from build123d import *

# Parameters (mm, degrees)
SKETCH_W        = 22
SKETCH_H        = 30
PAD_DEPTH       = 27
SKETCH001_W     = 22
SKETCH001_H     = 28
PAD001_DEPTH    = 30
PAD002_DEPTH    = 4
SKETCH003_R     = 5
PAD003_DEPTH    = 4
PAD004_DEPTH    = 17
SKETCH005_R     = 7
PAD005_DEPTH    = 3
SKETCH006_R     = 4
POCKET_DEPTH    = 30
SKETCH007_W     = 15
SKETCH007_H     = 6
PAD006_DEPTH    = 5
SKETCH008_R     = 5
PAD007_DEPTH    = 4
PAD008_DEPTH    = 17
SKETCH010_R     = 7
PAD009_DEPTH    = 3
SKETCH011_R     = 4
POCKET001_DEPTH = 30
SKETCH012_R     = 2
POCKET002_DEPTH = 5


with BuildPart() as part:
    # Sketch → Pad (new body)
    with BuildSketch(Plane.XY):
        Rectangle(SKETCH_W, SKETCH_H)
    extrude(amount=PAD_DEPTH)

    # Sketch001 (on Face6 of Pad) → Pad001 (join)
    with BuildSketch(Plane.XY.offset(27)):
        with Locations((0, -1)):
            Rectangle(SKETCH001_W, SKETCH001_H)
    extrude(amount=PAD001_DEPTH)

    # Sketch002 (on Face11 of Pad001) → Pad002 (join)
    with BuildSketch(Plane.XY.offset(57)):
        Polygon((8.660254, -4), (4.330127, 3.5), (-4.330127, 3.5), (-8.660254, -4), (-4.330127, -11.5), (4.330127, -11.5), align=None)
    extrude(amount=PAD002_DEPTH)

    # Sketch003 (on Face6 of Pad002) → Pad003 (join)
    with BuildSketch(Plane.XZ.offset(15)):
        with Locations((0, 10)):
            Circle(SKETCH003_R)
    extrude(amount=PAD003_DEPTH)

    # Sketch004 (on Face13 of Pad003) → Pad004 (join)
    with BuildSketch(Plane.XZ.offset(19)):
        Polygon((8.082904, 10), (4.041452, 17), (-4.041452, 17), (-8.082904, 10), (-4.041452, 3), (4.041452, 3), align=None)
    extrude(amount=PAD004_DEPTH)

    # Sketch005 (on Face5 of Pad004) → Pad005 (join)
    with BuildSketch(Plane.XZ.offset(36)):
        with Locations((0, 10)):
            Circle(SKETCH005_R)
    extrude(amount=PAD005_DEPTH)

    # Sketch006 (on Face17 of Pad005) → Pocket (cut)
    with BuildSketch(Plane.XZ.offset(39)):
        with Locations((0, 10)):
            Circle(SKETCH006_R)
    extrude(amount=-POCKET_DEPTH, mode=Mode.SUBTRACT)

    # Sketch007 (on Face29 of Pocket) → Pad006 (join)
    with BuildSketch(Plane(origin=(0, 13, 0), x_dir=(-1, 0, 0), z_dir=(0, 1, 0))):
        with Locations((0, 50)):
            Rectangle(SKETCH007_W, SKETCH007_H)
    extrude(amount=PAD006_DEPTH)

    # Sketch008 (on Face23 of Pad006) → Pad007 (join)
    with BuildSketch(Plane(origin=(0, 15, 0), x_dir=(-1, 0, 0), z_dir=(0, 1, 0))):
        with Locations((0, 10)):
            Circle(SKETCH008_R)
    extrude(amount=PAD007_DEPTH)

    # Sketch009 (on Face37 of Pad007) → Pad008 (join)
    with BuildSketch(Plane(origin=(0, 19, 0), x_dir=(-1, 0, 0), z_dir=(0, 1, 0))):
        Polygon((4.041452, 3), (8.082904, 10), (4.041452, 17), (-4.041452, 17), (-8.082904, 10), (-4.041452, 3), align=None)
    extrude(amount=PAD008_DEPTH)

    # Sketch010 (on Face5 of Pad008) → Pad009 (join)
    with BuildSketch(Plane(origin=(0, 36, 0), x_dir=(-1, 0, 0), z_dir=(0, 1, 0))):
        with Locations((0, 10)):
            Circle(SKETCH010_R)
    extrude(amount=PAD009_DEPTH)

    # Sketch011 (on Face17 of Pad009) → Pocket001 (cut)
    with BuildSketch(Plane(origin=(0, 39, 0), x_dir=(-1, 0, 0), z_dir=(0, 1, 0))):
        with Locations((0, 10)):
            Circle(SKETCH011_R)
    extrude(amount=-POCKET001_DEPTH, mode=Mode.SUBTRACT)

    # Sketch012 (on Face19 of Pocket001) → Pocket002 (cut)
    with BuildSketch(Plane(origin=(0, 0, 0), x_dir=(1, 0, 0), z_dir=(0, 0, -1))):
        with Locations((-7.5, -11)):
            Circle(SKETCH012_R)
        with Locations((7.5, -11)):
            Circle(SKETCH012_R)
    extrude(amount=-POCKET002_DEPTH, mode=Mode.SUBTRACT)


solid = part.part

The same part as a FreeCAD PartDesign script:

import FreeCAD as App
import Part
import Sketcher

V = App.Vector
Q = App.Units.Quantity

doc = App.newDocument("Part")
body = doc.addObject("PartDesign::Body", "Body")

sketch1 = body.newObject("Sketcher::SketchObject", "Sketch")
sketch1.AttachmentSupport = (doc.getObject("XY_Plane"), [""])
sketch1.MapMode = "FlatFace"
sketch1.addGeometry(Part.LineSegment(V(-11, 15, 0), V(-11, -15, 0)), False)
sketch1.addGeometry(Part.LineSegment(V(-11, -15, 0), V(11, -15, 0)), False)
sketch1.addGeometry(Part.LineSegment(V(11, -15, 0), V(11, 15, 0)), False)
sketch1.addGeometry(Part.LineSegment(V(11, 15, 0), V(-11, 15, 0)), False)
sketch1.addConstraint(Sketcher.Constraint("Coincident", 0, 2, 1, 1))
sketch1.addConstraint(Sketcher.Constraint("Coincident", 1, 2, 2, 1))
sketch1.addConstraint(Sketcher.Constraint("Coincident", 2, 2, 3, 1))
sketch1.addConstraint(Sketcher.Constraint("Coincident", 3, 2, 0, 1))
sketch1.addConstraint(Sketcher.Constraint("Vertical", 0))
sketch1.addConstraint(Sketcher.Constraint("Horizontal", 1))
sketch1.addConstraint(Sketcher.Constraint("Vertical", 2))
sketch1.addConstraint(Sketcher.Constraint("Horizontal", 3))
sketch1.addConstraint(Sketcher.Constraint("Symmetric", 0, 2, 2, 2, -1, 1))
sketch1.addConstraint(Sketcher.Constraint("DistanceX", 1, 1, 1, 2, Q("22 mm")))
sketch1.addConstraint(Sketcher.Constraint("DistanceY", 0, 2, 0, 1, Q("30 mm")))
pad1 = body.newObject("PartDesign::Pad", "Pad")
pad1.Profile = sketch1
pad1.Length = 27

sketch2 = body.newObject("Sketcher::SketchObject", "Sketch001")
sketch2.AttachmentSupport = (doc.getObject("XY_Plane"), [""])
sketch2.MapMode = "FlatFace"
sketch2.AttachmentOffset = App.Placement(V(0, 0, 27), App.Rotation())
sketch2.addGeometry(Part.LineSegment(V(-11, 13, 0), V(-11, -15, 0)), False)
sketch2.addGeometry(Part.LineSegment(V(-11, -15, 0), V(11, -15, 0)), False)
sketch2.addGeometry(Part.LineSegment(V(11, -15, 0), V(11, 13, 0)), False)
sketch2.addGeometry(Part.LineSegment(V(11, 13, 0), V(-11, 13, 0)), False)
sketch2.addConstraint(Sketcher.Constraint("Coincident", 0, 2, 1, 1))
sketch2.addConstraint(Sketcher.Constraint("Coincident", 1, 2, 2, 1))
sketch2.addConstraint(Sketcher.Constraint("Coincident", 2, 2, 3, 1))
sketch2.addConstraint(Sketcher.Constraint("Coincident", 3, 2, 0, 1))
sketch2.addConstraint(Sketcher.Constraint("Vertical", 0))
sketch2.addConstraint(Sketcher.Constraint("Horizontal", 1))
sketch2.addConstraint(Sketcher.Constraint("Vertical", 2))
sketch2.addConstraint(Sketcher.Constraint("Horizontal", 3))
sketch2.addConstraint(Sketcher.Constraint("DistanceX", 1, 1, 1, 2, Q("22 mm")))
sketch2.addConstraint(Sketcher.Constraint("DistanceY", 0, 2, 0, 1, Q("28 mm")))
sketch2.addConstraint(Sketcher.Constraint("DistanceX", 0, 2, -1, 1, Q("11 mm")))
sketch2.addConstraint(Sketcher.Constraint("DistanceY", 0, 2, -1, 1, Q("15 mm")))
pad2 = body.newObject("PartDesign::Pad", "Pad001")
pad2.Profile = sketch2
pad2.Length = 30

sketch3 = body.newObject("Sketcher::SketchObject", "Sketch002")
sketch3.AttachmentSupport = (doc.getObject("XY_Plane"), [""])
sketch3.MapMode = "FlatFace"
sketch3.AttachmentOffset = App.Placement(V(0, 0, 57), App.Rotation())
sketch3.addGeometry(Part.LineSegment(V(9, -4, 0), V(4, 4, 0)), False)
sketch3.addGeometry(Part.LineSegment(V(4, 4, 0), V(-4, 4, 0)), False)
sketch3.addGeometry(Part.LineSegment(V(-4, 4, 0), V(-9, -4, 0)), False)
sketch3.addGeometry(Part.LineSegment(V(-9, -4, 0), V(-4, -12, 0)), False)
sketch3.addGeometry(Part.LineSegment(V(-4, -12, 0), V(4, -12, 0)), False)
sketch3.addGeometry(Part.LineSegment(V(4, -12, 0), V(9, -4, 0)), False)
sketch3.addConstraint(Sketcher.Constraint("Coincident", 0, 2, 1, 1))
sketch3.addConstraint(Sketcher.Constraint("Coincident", 1, 2, 2, 1))
sketch3.addConstraint(Sketcher.Constraint("Coincident", 2, 2, 3, 1))
sketch3.addConstraint(Sketcher.Constraint("Coincident", 3, 2, 4, 1))
sketch3.addConstraint(Sketcher.Constraint("Coincident", 4, 2, 5, 1))
sketch3.addConstraint(Sketcher.Constraint("Coincident", 5, 2, 0, 1))
sketch3.addConstraint(Sketcher.Constraint("Horizontal", 1))
sketch3.addConstraint(Sketcher.Constraint("Horizontal", 4))
sketch3.addConstraint(Sketcher.Constraint("Symmetric", 2, 2, 5, 2, -2))
sketch3.addConstraint(Sketcher.Constraint("Parallel", 0, 3))
sketch3.addConstraint(Sketcher.Constraint("Parallel", 2, 5))
sketch3.addConstraint(Sketcher.Constraint("Vertical", 1, 2, 3, 2))
sketch3.addConstraint(Sketcher.Constraint("Vertical", 0, 2, 4, 2))
sketch3.addConstraint(Sketcher.Constraint("Angle", 0, Q("120 deg")))
sketch3.addConstraint(Sketcher.Constraint("DistanceY", 2, 2, -1, 1, Q("4 mm")))
sketch3.addConstraint(Sketcher.Constraint("DistanceY", 3, 2, 1, 2, Q("15 mm")))
sketch3.addConstraint(Sketcher.Constraint("DistanceX", 1, 2, 1, 1, Q("8.660254 mm")))
pad3 = body.newObject("PartDesign::Pad", "Pad002")
pad3.Profile = sketch3
pad3.Length = 4

sketch4 = body.newObject("Sketcher::SketchObject", "Sketch003")
sketch4.AttachmentSupport = (doc.getObject("XZ_Plane"), [""])
sketch4.MapMode = "FlatFace"
sketch4.AttachmentOffset = App.Placement(V(0, 0, 15), App.Rotation())
sketch4.addGeometry(Part.Circle(V(0, 10, 0), V(0, 0, 1), 5), False)
sketch4.addConstraint(Sketcher.Constraint("PointOnObject", 0, 3, -2))
sketch4.addConstraint(Sketcher.Constraint("Diameter", 0, Q("10 mm")))
sketch4.addConstraint(Sketcher.Constraint("DistanceY", -1, 1, 0, 3, Q("10 mm")))
pad4 = body.newObject("PartDesign::Pad", "Pad003")
pad4.Profile = sketch4
pad4.Length = 4

sketch5 = body.newObject("Sketcher::SketchObject", "Sketch004")
sketch5.AttachmentSupport = (doc.getObject("XZ_Plane"), [""])
sketch5.MapMode = "FlatFace"
sketch5.AttachmentOffset = App.Placement(V(0, 0, 19), App.Rotation())
sketch5.addGeometry(Part.LineSegment(V(8, 10, 0), V(4, 17, 0)), False)
sketch5.addGeometry(Part.LineSegment(V(4, 17, 0), V(-4, 17, 0)), False)
sketch5.addGeometry(Part.LineSegment(V(-4, 17, 0), V(-8, 10, 0)), False)
sketch5.addGeometry(Part.LineSegment(V(-8, 10, 0), V(-4, 3, 0)), False)
sketch5.addGeometry(Part.LineSegment(V(-4, 3, 0), V(4, 3, 0)), False)
sketch5.addGeometry(Part.LineSegment(V(4, 3, 0), V(8, 10, 0)), False)
sketch5.addConstraint(Sketcher.Constraint("Coincident", 0, 2, 1, 1))
sketch5.addConstraint(Sketcher.Constraint("Coincident", 1, 2, 2, 1))
sketch5.addConstraint(Sketcher.Constraint("Coincident", 2, 2, 3, 1))
sketch5.addConstraint(Sketcher.Constraint("Coincident", 3, 2, 4, 1))
sketch5.addConstraint(Sketcher.Constraint("Coincident", 4, 2, 5, 1))
sketch5.addConstraint(Sketcher.Constraint("Coincident", 5, 2, 0, 1))
sketch5.addConstraint(Sketcher.Constraint("Horizontal", 1))
sketch5.addConstraint(Sketcher.Constraint("Horizontal", 4))
sketch5.addConstraint(Sketcher.Constraint("Symmetric", 2, 2, 5, 2, -2))
sketch5.addConstraint(Sketcher.Constraint("Parallel", 0, 3))
sketch5.addConstraint(Sketcher.Constraint("Parallel", 2, 5))
sketch5.addConstraint(Sketcher.Constraint("Vertical", 1, 2, 3, 2))
sketch5.addConstraint(Sketcher.Constraint("Vertical", 0, 2, 4, 2))
sketch5.addConstraint(Sketcher.Constraint("Angle", 0, Q("120.000001 deg")))
sketch5.addConstraint(Sketcher.Constraint("DistanceY", -1, 1, 0, 2, Q("17 mm")))
sketch5.addConstraint(Sketcher.Constraint("DistanceY", -1, 1, 2, 2, Q("10 mm")))
sketch5.addConstraint(Sketcher.Constraint("DistanceX", 1, 2, 1, 1, Q("8.082904 mm")))
pad5 = body.newObject("PartDesign::Pad", "Pad004")
pad5.Profile = sketch5
pad5.Length = 17

sketch6 = body.newObject("Sketcher::SketchObject", "Sketch005")
sketch6.AttachmentSupport = (doc.getObject("XZ_Plane"), [""])
sketch6.MapMode = "FlatFace"
sketch6.AttachmentOffset = App.Placement(V(0, 0, 36), App.Rotation())
sketch6.addGeometry(Part.Circle(V(0, 10, 0), V(0, 0, 1), 7), False)
sketch6.addConstraint(Sketcher.Constraint("PointOnObject", 0, 3, -2))
sketch6.addConstraint(Sketcher.Constraint("Diameter", 0, Q("14 mm")))
sketch6.addConstraint(Sketcher.Constraint("DistanceY", -1, 1, 0, 3, Q("10 mm")))
pad6 = body.newObject("PartDesign::Pad", "Pad005")
pad6.Profile = sketch6
pad6.Length = 3

sketch7 = body.newObject("Sketcher::SketchObject", "Sketch006")
sketch7.AttachmentSupport = (doc.getObject("XZ_Plane"), [""])
sketch7.MapMode = "FlatFace"
sketch7.AttachmentOffset = App.Placement(V(0, 0, 39), App.Rotation())
sketch7.addGeometry(Part.Circle(V(0, 10, 0), V(0, 0, 1), 4), False)
sketch7.addConstraint(Sketcher.Constraint("PointOnObject", 0, 3, -2))
sketch7.addConstraint(Sketcher.Constraint("Diameter", 0, Q("8 mm")))
sketch7.addConstraint(Sketcher.Constraint("DistanceY", -1, 1, 0, 3, Q("10 mm")))
pocket1 = body.newObject("PartDesign::Pocket", "Pocket")
pocket1.Profile = sketch7
pocket1.Length = 30

sketch8 = body.newObject("Sketcher::SketchObject", "Sketch007")
sketch8.AttachmentSupport = (doc.getObject("XZ_Plane"), [""])
sketch8.MapMode = "FlatFace"
sketch8.AttachmentOffset = App.Placement(V(0, 0, -13), App.Rotation())
sketch8.addGeometry(Part.LineSegment(V(8, 53, 0), V(8, 47, 0)), False)
sketch8.addGeometry(Part.LineSegment(V(8, 47, 0), V(-8, 47, 0)), False)
sketch8.addGeometry(Part.LineSegment(V(-8, 47, 0), V(-8, 53, 0)), False)
sketch8.addGeometry(Part.LineSegment(V(-8, 53, 0), V(8, 53, 0)), False)
sketch8.addConstraint(Sketcher.Constraint("Coincident", 0, 2, 1, 1))
sketch8.addConstraint(Sketcher.Constraint("Coincident", 1, 2, 2, 1))
sketch8.addConstraint(Sketcher.Constraint("Coincident", 2, 2, 3, 1))
sketch8.addConstraint(Sketcher.Constraint("Coincident", 3, 2, 0, 1))
sketch8.addConstraint(Sketcher.Constraint("Vertical", 0))
sketch8.addConstraint(Sketcher.Constraint("Horizontal", 1))
sketch8.addConstraint(Sketcher.Constraint("Vertical", 2))
sketch8.addConstraint(Sketcher.Constraint("Horizontal", 3))
sketch8.addConstraint(Sketcher.Constraint("DistanceX", 1, 2, 1, 1, Q("15 mm")))
sketch8.addConstraint(Sketcher.Constraint("DistanceY", 0, 2, 0, 1, Q("6 mm")))
sketch8.addConstraint(Sketcher.Constraint("DistanceY", -1, 1, 0, 2, Q("47 mm")))
sketch8.addConstraint(Sketcher.Constraint("DistanceX", -1, 1, 0, 2, Q("7.5 mm")))
pad7 = body.newObject("PartDesign::Pad", "Pad006")
pad7.Profile = sketch8
pad7.Length = 5
pad7.Reversed = True

sketch9 = body.newObject("Sketcher::SketchObject", "Sketch008")
sketch9.AttachmentSupport = (doc.getObject("XZ_Plane"), [""])
sketch9.MapMode = "FlatFace"
sketch9.AttachmentOffset = App.Placement(V(0, 0, -15), App.Rotation())
sketch9.addGeometry(Part.Circle(V(0, 10, 0), V(0, 0, 1), 5), False)
sketch9.addConstraint(Sketcher.Constraint("PointOnObject", 0, 3, -2))
sketch9.addConstraint(Sketcher.Constraint("Diameter", 0, Q("10 mm")))
sketch9.addConstraint(Sketcher.Constraint("DistanceY", -1, 1, 0, 3, Q("10 mm")))
pad8 = body.newObject("PartDesign::Pad", "Pad007")
pad8.Profile = sketch9
pad8.Length = 4
pad8.Reversed = True

sketch10 = body.newObject("Sketcher::SketchObject", "Sketch009")
sketch10.AttachmentSupport = (doc.getObject("XZ_Plane"), [""])
sketch10.MapMode = "FlatFace"
sketch10.AttachmentOffset = App.Placement(V(0, 0, -19), App.Rotation())
sketch10.addGeometry(Part.LineSegment(V(-4, 3, 0), V(-8, 10, 0)), False)
sketch10.addGeometry(Part.LineSegment(V(-8, 10, 0), V(-4, 17, 0)), False)
sketch10.addGeometry(Part.LineSegment(V(-4, 17, 0), V(4, 17, 0)), False)
sketch10.addGeometry(Part.LineSegment(V(4, 17, 0), V(8, 10, 0)), False)
sketch10.addGeometry(Part.LineSegment(V(8, 10, 0), V(4, 3, 0)), False)
sketch10.addGeometry(Part.LineSegment(V(4, 3, 0), V(-4, 3, 0)), False)
sketch10.addConstraint(Sketcher.Constraint("Coincident", 0, 2, 1, 1))
sketch10.addConstraint(Sketcher.Constraint("Coincident", 1, 2, 2, 1))
sketch10.addConstraint(Sketcher.Constraint("Coincident", 2, 2, 3, 1))
sketch10.addConstraint(Sketcher.Constraint("Coincident", 3, 2, 4, 1))
sketch10.addConstraint(Sketcher.Constraint("Coincident", 4, 2, 5, 1))
sketch10.addConstraint(Sketcher.Constraint("Coincident", 5, 2, 0, 1))
sketch10.addConstraint(Sketcher.Constraint("Horizontal", 2))
sketch10.addConstraint(Sketcher.Constraint("Horizontal", 5))
sketch10.addConstraint(Sketcher.Constraint("Symmetric", 0, 2, 3, 2, -2))
sketch10.addConstraint(Sketcher.Constraint("Parallel", 0, 3))
sketch10.addConstraint(Sketcher.Constraint("Parallel", 1, 4))
sketch10.addConstraint(Sketcher.Constraint("Vertical", 2, 2, 4, 2))
sketch10.addConstraint(Sketcher.Constraint("Vertical", 1, 2, 5, 2))
sketch10.addConstraint(Sketcher.Constraint("Angle", 0, Q("120.000001 deg")))
sketch10.addConstraint(Sketcher.Constraint("DistanceY", -1, 1, 0, 2, Q("10 mm")))
sketch10.addConstraint(Sketcher.Constraint("DistanceY", -1, 1, 1, 2, Q("17 mm")))
sketch10.addConstraint(Sketcher.Constraint("DistanceX", 2, 1, 2, 2, Q("8.082904 mm")))
pad9 = body.newObject("PartDesign::Pad", "Pad008")
pad9.Profile = sketch10
pad9.Length = 17
pad9.Reversed = True

sketch11 = body.newObject("Sketcher::SketchObject", "Sketch010")
sketch11.AttachmentSupport = (doc.getObject("XZ_Plane"), [""])
sketch11.MapMode = "FlatFace"
sketch11.AttachmentOffset = App.Placement(V(0, 0, -36), App.Rotation())
sketch11.addGeometry(Part.Circle(V(0, 10, 0), V(0, 0, 1), 7), False)
sketch11.addConstraint(Sketcher.Constraint("PointOnObject", 0, 3, -2))
sketch11.addConstraint(Sketcher.Constraint("Diameter", 0, Q("14 mm")))
sketch11.addConstraint(Sketcher.Constraint("DistanceY", -1, 1, 0, 3, Q("10 mm")))
pad10 = body.newObject("PartDesign::Pad", "Pad009")
pad10.Profile = sketch11
pad10.Length = 3
pad10.Reversed = True

sketch12 = body.newObject("Sketcher::SketchObject", "Sketch011")
sketch12.AttachmentSupport = (doc.getObject("XZ_Plane"), [""])
sketch12.MapMode = "FlatFace"
sketch12.AttachmentOffset = App.Placement(V(0, 0, -39), App.Rotation())
sketch12.addGeometry(Part.Circle(V(0, 10, 0), V(0, 0, 1), 4), False)
sketch12.addConstraint(Sketcher.Constraint("PointOnObject", 0, 3, -2))
sketch12.addConstraint(Sketcher.Constraint("Diameter", 0, Q("8 mm")))
sketch12.addConstraint(Sketcher.Constraint("DistanceY", -1, 1, 0, 3, Q("10 mm")))
pocket2 = body.newObject("PartDesign::Pocket", "Pocket001")
pocket2.Profile = sketch12
pocket2.Length = 30
pocket2.Reversed = True

sketch13 = body.newObject("Sketcher::SketchObject", "Sketch012")
sketch13.AttachmentSupport = (doc.getObject("XY_Plane"), [""])
sketch13.MapMode = "FlatFace"
sketch13.addGeometry(Part.Circle(V(-7.5, 11, 0), V(0, 0, 1), 2), False)
sketch13.addGeometry(Part.Circle(V(7.5, 11, 0), V(0, 0, 1), 2), False)
sketch13.addConstraint(Sketcher.Constraint("Equal", 0, 1))
sketch13.addConstraint(Sketcher.Constraint("Symmetric", 0, 3, 1, 3, -2))
sketch13.addConstraint(Sketcher.Constraint("Diameter", 0, Q("4 mm")))
sketch13.addConstraint(Sketcher.Constraint("DistanceY", -1, 1, 0, 3, Q("11 mm")))
sketch13.addConstraint(Sketcher.Constraint("DistanceX", 0, 3, 1, 3, Q("15 mm")))
pocket3 = body.newObject("PartDesign::Pocket", "Pocket002")
pocket3.Profile = sketch13
pocket3.Length = 5
pocket3.Reversed = True

doc.recompute()
